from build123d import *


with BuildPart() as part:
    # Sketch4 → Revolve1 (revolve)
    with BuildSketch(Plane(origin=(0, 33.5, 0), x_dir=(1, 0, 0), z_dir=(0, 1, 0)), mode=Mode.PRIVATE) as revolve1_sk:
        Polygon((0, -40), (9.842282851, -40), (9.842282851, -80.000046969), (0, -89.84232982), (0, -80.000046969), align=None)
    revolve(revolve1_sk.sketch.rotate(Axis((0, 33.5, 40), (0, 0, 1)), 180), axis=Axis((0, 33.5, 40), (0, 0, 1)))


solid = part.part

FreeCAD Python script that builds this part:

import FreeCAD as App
import Part
import Sketcher
from FreeCAD import Vector
Q = App.Units.Quantity

doc = App.newDocument("Part")
body = doc.addObject("PartDesign::Body", "Body")

sketch1 = body.newObject("Sketcher::SketchObject", "Sketch")
sketch1.AttachmentSupport = (doc.getObject("XZ_Plane"), [""])
sketch1.MapMode = "FlatFace"
sketch1.AttachmentOffset = App.Placement(Vector(0, 0, -33.5), App.Rotation())
sketch1.addGeometry(Part.LineSegment(Vector(10, 40, 0), Vector(0, 40, 0)), False)
sketch1.addGeometry(Part.LineSegment(Vector(0, 40, 0), Vector(0, 90, 0)), False)
sketch1.addGeometry(Part.LineSegment(Vector(0, 90, 0), Vector(10, 80, 0)), False)
sketch1.addGeometry(Part.LineSegment(Vector(10, 80, 0), Vector(10, 40, 0)), False)
sketch1.addConstraint(Sketcher.Constraint("Coincident", 0, 2, 1, 1))
sketch1.addConstraint(Sketcher.Constraint("Coincident", 1, 2, 2, 1))
sketch1.addConstraint(Sketcher.Constraint("Coincident", 2, 2, 3, 1))
sketch1.addConstraint(Sketcher.Constraint("Coincident", 3, 2, 0, 1))
sketch1.addConstraint(Sketcher.Constraint("Horizontal", 0))
sketch1.addConstraint(Sketcher.Constraint("Vertical", 1))
sketch1.addConstraint(Sketcher.Constraint("Vertical", 3))
sketch1.addConstraint(Sketcher.Constraint("PointOnObject", 0, 2, -2))
sketch1.addConstraint(Sketcher.Constraint("Angle", 2, Q("-45 deg")))
sketch1.addConstraint(Sketcher.Constraint("DistanceY", -1, 1, 0, 2, 40.0))
sketch1.addConstraint(Sketcher.Constraint("DistanceY", 1, 1, 1, 2, 49.84233))
sketch1.addConstraint(Sketcher.Constraint("Distance", 2, 13.91909))
revolution = body.newObject("PartDesign::Revolution", "Revolution")
revolution.Profile = sketch1
revolution.ReferenceAxis = (sketch1, ["V_Axis"])
revolution.Angle = 360

doc.recompute()
